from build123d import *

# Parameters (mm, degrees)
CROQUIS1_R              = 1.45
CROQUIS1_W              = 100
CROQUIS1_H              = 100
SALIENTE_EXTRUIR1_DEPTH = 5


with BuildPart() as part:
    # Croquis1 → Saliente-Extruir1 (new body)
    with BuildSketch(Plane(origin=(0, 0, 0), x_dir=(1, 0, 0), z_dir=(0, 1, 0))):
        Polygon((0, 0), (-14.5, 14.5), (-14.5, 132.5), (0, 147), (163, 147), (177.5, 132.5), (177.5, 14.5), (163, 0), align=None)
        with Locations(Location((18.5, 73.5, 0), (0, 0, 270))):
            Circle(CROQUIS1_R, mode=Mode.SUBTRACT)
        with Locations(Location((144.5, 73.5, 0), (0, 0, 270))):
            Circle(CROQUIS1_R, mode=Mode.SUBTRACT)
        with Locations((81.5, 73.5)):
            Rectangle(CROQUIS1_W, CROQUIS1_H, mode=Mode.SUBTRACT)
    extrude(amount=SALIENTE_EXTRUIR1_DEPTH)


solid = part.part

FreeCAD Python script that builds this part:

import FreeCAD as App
import Part
import Sketcher


def add_polygon(sketch, points):
    """Adds a closed chain of lines whose ends are joined by coincident constraints."""
    first, n = sketch.GeometryCount, len(points)
    for a, b in zip(points, points[1:] + points[:1]):
        sketch.addGeometry(Part.LineSegment(App.Vector(*a, 0), App.Vector(*b, 0)), False)
    for i in range(n):
        sketch.addConstraint(Sketcher.Constraint("Coincident", first + i, 2, first + (i + 1) % n, 1))

doc = App.newDocument("Part")
params = doc.addObject("Spreadsheet::Sheet", "Params")
for row, (alias, value) in enumerate([
    ("sketch1_diameter", "2.9 mm"),
    ("sketch1_width", "163 mm"),
    ("sketch1_width2", "100 mm"),
    ("sketch1_height", "118 mm"),
    ("pad1_length", "5 mm"),
], start=1):
    params.set(f"A{row}", alias)
    params.set(f"B{row}", "=" + value)
    params.setAlias(f"B{row}", alias)

body = doc.addObject("PartDesign::Body", "Body")

sketch1 = doc.addObject("Sketcher::SketchObject", "Sketch")
body.addObject(sketch1)
sketch1.AttachmentSupport = (doc.XZ_Plane, [""])
sketch1.MapMode = "FlatFace"
add_polygon(sketch1, [(-14.5, -14.5), (0, 0), (163, 0), (177.5, -14.5), (177.5, -132.5), (163, -147), (0, -147), (-14.5, -132.5)])
sketch1.addGeometry(Part.Circle(App.Vector(144.5, -73.5, 0), App.Vector(0, 0, 1), 1.4), False)
add_polygon(sketch1, [(31.5, -23.5), (31.5, -123.5), (131.5, -123.5), (131.5, -23.5)])
sketch1.addGeometry(Part.Circle(App.Vector(18.5, -73.5, 0), App.Vector(0, 0, 1), 1.4), False)
sketch1.addConstraint(Sketcher.Constraint("Horizontal", 1))
sketch1.addConstraint(Sketcher.Constraint("Vertical", 3))
sketch1.addConstraint(Sketcher.Constraint("Horizontal", 5))
sketch1.addConstraint(Sketcher.Constraint("Vertical", 7))
sketch1.addConstraint(Sketcher.Constraint("Vertical", 9))
sketch1.addConstraint(Sketcher.Constraint("Horizontal", 10))
sketch1.addConstraint(Sketcher.Constraint("Vertical", 11))
sketch1.addConstraint(Sketcher.Constraint("Horizontal", 12))
sketch1.addConstraint(Sketcher.Constraint("Coincident", 0, 2, -1, 1))
sketch1.addConstraint(Sketcher.Constraint("Equal", 8, 13))
sketch1.addConstraint(Sketcher.Constraint("PointOnObject", 5, 2, -2))
sketch1.addConstraint(Sketcher.Constraint("Perpendicular", 0, 2))
sketch1.addConstraint(Sketcher.Constraint("Perpendicular", 2, 4))
sketch1.addConstraint(Sketcher.Constraint("Perpendicular", 4, 6))
sketch1.addConstraint(Sketcher.Constraint("Horizontal", 8, 3, 13, 3))
sketch1.addConstraint(Sketcher.Constraint("Horizontal", 3, 2, 6, 2))
sketch1.addConstraint(Sketcher.Constraint("Horizontal", 2, 2, 7, 2))
sketch1.addConstraint(Sketcher.Constraint("Vertical", 1, 2, 4, 2))
sketch1.addConstraint(Sketcher.Constraint("Equal", 12, 9))
sketch1.addConstraint(Sketcher.Constraint("Diameter", 8, 2.9))
sketch1.addConstraint(Sketcher.Constraint("DistanceX", 1, 1, 1, 2, 163.0))
sketch1.addConstraint(Sketcher.Constraint("DistanceX", 10, 1, 10, 2, 100.0))
sketch1.addConstraint(Sketcher.Constraint("DistanceY", 3, 2, 3, 1, 118.0))
sketch1.addConstraint(Sketcher.Constraint("DistanceY", 4, 2, -1, 1, 147.0))
sketch1.addConstraint(Sketcher.Constraint("DistanceX", 13, 3, 8, 3, 126.0))
sketch1.addConstraint(Sketcher.Constraint("DistanceX", 8, 3, 2, 2, 33.0))
sketch1.addConstraint(Sketcher.Constraint("DistanceY", 8, 3, 2, 2, 59.0))
sketch1.addConstraint(Sketcher.Constraint("DistanceX", 6, 2, 9, 2, 46.0))
sketch1.addConstraint(Sketcher.Constraint("DistanceY", 6, 2, 9, 2, 9.0))
sketch1.setExpression("Constraints[31]", "Params.sketch1_diameter")
sketch1.setExpression("Constraints[32]", "Params.sketch1_width")
sketch1.setExpression("Constraints[33]", "Params.sketch1_width2")
sketch1.setExpression("Constraints[34]", "Params.sketch1_height")
pad1 = doc.addObject("PartDesign::Pad", "Pad")
body.addObject(pad1)
pad1.Profile = sketch1
pad1.setExpression("Length", "Params.pad1_length")
pad1.Reversed = True

doc.recompute()
